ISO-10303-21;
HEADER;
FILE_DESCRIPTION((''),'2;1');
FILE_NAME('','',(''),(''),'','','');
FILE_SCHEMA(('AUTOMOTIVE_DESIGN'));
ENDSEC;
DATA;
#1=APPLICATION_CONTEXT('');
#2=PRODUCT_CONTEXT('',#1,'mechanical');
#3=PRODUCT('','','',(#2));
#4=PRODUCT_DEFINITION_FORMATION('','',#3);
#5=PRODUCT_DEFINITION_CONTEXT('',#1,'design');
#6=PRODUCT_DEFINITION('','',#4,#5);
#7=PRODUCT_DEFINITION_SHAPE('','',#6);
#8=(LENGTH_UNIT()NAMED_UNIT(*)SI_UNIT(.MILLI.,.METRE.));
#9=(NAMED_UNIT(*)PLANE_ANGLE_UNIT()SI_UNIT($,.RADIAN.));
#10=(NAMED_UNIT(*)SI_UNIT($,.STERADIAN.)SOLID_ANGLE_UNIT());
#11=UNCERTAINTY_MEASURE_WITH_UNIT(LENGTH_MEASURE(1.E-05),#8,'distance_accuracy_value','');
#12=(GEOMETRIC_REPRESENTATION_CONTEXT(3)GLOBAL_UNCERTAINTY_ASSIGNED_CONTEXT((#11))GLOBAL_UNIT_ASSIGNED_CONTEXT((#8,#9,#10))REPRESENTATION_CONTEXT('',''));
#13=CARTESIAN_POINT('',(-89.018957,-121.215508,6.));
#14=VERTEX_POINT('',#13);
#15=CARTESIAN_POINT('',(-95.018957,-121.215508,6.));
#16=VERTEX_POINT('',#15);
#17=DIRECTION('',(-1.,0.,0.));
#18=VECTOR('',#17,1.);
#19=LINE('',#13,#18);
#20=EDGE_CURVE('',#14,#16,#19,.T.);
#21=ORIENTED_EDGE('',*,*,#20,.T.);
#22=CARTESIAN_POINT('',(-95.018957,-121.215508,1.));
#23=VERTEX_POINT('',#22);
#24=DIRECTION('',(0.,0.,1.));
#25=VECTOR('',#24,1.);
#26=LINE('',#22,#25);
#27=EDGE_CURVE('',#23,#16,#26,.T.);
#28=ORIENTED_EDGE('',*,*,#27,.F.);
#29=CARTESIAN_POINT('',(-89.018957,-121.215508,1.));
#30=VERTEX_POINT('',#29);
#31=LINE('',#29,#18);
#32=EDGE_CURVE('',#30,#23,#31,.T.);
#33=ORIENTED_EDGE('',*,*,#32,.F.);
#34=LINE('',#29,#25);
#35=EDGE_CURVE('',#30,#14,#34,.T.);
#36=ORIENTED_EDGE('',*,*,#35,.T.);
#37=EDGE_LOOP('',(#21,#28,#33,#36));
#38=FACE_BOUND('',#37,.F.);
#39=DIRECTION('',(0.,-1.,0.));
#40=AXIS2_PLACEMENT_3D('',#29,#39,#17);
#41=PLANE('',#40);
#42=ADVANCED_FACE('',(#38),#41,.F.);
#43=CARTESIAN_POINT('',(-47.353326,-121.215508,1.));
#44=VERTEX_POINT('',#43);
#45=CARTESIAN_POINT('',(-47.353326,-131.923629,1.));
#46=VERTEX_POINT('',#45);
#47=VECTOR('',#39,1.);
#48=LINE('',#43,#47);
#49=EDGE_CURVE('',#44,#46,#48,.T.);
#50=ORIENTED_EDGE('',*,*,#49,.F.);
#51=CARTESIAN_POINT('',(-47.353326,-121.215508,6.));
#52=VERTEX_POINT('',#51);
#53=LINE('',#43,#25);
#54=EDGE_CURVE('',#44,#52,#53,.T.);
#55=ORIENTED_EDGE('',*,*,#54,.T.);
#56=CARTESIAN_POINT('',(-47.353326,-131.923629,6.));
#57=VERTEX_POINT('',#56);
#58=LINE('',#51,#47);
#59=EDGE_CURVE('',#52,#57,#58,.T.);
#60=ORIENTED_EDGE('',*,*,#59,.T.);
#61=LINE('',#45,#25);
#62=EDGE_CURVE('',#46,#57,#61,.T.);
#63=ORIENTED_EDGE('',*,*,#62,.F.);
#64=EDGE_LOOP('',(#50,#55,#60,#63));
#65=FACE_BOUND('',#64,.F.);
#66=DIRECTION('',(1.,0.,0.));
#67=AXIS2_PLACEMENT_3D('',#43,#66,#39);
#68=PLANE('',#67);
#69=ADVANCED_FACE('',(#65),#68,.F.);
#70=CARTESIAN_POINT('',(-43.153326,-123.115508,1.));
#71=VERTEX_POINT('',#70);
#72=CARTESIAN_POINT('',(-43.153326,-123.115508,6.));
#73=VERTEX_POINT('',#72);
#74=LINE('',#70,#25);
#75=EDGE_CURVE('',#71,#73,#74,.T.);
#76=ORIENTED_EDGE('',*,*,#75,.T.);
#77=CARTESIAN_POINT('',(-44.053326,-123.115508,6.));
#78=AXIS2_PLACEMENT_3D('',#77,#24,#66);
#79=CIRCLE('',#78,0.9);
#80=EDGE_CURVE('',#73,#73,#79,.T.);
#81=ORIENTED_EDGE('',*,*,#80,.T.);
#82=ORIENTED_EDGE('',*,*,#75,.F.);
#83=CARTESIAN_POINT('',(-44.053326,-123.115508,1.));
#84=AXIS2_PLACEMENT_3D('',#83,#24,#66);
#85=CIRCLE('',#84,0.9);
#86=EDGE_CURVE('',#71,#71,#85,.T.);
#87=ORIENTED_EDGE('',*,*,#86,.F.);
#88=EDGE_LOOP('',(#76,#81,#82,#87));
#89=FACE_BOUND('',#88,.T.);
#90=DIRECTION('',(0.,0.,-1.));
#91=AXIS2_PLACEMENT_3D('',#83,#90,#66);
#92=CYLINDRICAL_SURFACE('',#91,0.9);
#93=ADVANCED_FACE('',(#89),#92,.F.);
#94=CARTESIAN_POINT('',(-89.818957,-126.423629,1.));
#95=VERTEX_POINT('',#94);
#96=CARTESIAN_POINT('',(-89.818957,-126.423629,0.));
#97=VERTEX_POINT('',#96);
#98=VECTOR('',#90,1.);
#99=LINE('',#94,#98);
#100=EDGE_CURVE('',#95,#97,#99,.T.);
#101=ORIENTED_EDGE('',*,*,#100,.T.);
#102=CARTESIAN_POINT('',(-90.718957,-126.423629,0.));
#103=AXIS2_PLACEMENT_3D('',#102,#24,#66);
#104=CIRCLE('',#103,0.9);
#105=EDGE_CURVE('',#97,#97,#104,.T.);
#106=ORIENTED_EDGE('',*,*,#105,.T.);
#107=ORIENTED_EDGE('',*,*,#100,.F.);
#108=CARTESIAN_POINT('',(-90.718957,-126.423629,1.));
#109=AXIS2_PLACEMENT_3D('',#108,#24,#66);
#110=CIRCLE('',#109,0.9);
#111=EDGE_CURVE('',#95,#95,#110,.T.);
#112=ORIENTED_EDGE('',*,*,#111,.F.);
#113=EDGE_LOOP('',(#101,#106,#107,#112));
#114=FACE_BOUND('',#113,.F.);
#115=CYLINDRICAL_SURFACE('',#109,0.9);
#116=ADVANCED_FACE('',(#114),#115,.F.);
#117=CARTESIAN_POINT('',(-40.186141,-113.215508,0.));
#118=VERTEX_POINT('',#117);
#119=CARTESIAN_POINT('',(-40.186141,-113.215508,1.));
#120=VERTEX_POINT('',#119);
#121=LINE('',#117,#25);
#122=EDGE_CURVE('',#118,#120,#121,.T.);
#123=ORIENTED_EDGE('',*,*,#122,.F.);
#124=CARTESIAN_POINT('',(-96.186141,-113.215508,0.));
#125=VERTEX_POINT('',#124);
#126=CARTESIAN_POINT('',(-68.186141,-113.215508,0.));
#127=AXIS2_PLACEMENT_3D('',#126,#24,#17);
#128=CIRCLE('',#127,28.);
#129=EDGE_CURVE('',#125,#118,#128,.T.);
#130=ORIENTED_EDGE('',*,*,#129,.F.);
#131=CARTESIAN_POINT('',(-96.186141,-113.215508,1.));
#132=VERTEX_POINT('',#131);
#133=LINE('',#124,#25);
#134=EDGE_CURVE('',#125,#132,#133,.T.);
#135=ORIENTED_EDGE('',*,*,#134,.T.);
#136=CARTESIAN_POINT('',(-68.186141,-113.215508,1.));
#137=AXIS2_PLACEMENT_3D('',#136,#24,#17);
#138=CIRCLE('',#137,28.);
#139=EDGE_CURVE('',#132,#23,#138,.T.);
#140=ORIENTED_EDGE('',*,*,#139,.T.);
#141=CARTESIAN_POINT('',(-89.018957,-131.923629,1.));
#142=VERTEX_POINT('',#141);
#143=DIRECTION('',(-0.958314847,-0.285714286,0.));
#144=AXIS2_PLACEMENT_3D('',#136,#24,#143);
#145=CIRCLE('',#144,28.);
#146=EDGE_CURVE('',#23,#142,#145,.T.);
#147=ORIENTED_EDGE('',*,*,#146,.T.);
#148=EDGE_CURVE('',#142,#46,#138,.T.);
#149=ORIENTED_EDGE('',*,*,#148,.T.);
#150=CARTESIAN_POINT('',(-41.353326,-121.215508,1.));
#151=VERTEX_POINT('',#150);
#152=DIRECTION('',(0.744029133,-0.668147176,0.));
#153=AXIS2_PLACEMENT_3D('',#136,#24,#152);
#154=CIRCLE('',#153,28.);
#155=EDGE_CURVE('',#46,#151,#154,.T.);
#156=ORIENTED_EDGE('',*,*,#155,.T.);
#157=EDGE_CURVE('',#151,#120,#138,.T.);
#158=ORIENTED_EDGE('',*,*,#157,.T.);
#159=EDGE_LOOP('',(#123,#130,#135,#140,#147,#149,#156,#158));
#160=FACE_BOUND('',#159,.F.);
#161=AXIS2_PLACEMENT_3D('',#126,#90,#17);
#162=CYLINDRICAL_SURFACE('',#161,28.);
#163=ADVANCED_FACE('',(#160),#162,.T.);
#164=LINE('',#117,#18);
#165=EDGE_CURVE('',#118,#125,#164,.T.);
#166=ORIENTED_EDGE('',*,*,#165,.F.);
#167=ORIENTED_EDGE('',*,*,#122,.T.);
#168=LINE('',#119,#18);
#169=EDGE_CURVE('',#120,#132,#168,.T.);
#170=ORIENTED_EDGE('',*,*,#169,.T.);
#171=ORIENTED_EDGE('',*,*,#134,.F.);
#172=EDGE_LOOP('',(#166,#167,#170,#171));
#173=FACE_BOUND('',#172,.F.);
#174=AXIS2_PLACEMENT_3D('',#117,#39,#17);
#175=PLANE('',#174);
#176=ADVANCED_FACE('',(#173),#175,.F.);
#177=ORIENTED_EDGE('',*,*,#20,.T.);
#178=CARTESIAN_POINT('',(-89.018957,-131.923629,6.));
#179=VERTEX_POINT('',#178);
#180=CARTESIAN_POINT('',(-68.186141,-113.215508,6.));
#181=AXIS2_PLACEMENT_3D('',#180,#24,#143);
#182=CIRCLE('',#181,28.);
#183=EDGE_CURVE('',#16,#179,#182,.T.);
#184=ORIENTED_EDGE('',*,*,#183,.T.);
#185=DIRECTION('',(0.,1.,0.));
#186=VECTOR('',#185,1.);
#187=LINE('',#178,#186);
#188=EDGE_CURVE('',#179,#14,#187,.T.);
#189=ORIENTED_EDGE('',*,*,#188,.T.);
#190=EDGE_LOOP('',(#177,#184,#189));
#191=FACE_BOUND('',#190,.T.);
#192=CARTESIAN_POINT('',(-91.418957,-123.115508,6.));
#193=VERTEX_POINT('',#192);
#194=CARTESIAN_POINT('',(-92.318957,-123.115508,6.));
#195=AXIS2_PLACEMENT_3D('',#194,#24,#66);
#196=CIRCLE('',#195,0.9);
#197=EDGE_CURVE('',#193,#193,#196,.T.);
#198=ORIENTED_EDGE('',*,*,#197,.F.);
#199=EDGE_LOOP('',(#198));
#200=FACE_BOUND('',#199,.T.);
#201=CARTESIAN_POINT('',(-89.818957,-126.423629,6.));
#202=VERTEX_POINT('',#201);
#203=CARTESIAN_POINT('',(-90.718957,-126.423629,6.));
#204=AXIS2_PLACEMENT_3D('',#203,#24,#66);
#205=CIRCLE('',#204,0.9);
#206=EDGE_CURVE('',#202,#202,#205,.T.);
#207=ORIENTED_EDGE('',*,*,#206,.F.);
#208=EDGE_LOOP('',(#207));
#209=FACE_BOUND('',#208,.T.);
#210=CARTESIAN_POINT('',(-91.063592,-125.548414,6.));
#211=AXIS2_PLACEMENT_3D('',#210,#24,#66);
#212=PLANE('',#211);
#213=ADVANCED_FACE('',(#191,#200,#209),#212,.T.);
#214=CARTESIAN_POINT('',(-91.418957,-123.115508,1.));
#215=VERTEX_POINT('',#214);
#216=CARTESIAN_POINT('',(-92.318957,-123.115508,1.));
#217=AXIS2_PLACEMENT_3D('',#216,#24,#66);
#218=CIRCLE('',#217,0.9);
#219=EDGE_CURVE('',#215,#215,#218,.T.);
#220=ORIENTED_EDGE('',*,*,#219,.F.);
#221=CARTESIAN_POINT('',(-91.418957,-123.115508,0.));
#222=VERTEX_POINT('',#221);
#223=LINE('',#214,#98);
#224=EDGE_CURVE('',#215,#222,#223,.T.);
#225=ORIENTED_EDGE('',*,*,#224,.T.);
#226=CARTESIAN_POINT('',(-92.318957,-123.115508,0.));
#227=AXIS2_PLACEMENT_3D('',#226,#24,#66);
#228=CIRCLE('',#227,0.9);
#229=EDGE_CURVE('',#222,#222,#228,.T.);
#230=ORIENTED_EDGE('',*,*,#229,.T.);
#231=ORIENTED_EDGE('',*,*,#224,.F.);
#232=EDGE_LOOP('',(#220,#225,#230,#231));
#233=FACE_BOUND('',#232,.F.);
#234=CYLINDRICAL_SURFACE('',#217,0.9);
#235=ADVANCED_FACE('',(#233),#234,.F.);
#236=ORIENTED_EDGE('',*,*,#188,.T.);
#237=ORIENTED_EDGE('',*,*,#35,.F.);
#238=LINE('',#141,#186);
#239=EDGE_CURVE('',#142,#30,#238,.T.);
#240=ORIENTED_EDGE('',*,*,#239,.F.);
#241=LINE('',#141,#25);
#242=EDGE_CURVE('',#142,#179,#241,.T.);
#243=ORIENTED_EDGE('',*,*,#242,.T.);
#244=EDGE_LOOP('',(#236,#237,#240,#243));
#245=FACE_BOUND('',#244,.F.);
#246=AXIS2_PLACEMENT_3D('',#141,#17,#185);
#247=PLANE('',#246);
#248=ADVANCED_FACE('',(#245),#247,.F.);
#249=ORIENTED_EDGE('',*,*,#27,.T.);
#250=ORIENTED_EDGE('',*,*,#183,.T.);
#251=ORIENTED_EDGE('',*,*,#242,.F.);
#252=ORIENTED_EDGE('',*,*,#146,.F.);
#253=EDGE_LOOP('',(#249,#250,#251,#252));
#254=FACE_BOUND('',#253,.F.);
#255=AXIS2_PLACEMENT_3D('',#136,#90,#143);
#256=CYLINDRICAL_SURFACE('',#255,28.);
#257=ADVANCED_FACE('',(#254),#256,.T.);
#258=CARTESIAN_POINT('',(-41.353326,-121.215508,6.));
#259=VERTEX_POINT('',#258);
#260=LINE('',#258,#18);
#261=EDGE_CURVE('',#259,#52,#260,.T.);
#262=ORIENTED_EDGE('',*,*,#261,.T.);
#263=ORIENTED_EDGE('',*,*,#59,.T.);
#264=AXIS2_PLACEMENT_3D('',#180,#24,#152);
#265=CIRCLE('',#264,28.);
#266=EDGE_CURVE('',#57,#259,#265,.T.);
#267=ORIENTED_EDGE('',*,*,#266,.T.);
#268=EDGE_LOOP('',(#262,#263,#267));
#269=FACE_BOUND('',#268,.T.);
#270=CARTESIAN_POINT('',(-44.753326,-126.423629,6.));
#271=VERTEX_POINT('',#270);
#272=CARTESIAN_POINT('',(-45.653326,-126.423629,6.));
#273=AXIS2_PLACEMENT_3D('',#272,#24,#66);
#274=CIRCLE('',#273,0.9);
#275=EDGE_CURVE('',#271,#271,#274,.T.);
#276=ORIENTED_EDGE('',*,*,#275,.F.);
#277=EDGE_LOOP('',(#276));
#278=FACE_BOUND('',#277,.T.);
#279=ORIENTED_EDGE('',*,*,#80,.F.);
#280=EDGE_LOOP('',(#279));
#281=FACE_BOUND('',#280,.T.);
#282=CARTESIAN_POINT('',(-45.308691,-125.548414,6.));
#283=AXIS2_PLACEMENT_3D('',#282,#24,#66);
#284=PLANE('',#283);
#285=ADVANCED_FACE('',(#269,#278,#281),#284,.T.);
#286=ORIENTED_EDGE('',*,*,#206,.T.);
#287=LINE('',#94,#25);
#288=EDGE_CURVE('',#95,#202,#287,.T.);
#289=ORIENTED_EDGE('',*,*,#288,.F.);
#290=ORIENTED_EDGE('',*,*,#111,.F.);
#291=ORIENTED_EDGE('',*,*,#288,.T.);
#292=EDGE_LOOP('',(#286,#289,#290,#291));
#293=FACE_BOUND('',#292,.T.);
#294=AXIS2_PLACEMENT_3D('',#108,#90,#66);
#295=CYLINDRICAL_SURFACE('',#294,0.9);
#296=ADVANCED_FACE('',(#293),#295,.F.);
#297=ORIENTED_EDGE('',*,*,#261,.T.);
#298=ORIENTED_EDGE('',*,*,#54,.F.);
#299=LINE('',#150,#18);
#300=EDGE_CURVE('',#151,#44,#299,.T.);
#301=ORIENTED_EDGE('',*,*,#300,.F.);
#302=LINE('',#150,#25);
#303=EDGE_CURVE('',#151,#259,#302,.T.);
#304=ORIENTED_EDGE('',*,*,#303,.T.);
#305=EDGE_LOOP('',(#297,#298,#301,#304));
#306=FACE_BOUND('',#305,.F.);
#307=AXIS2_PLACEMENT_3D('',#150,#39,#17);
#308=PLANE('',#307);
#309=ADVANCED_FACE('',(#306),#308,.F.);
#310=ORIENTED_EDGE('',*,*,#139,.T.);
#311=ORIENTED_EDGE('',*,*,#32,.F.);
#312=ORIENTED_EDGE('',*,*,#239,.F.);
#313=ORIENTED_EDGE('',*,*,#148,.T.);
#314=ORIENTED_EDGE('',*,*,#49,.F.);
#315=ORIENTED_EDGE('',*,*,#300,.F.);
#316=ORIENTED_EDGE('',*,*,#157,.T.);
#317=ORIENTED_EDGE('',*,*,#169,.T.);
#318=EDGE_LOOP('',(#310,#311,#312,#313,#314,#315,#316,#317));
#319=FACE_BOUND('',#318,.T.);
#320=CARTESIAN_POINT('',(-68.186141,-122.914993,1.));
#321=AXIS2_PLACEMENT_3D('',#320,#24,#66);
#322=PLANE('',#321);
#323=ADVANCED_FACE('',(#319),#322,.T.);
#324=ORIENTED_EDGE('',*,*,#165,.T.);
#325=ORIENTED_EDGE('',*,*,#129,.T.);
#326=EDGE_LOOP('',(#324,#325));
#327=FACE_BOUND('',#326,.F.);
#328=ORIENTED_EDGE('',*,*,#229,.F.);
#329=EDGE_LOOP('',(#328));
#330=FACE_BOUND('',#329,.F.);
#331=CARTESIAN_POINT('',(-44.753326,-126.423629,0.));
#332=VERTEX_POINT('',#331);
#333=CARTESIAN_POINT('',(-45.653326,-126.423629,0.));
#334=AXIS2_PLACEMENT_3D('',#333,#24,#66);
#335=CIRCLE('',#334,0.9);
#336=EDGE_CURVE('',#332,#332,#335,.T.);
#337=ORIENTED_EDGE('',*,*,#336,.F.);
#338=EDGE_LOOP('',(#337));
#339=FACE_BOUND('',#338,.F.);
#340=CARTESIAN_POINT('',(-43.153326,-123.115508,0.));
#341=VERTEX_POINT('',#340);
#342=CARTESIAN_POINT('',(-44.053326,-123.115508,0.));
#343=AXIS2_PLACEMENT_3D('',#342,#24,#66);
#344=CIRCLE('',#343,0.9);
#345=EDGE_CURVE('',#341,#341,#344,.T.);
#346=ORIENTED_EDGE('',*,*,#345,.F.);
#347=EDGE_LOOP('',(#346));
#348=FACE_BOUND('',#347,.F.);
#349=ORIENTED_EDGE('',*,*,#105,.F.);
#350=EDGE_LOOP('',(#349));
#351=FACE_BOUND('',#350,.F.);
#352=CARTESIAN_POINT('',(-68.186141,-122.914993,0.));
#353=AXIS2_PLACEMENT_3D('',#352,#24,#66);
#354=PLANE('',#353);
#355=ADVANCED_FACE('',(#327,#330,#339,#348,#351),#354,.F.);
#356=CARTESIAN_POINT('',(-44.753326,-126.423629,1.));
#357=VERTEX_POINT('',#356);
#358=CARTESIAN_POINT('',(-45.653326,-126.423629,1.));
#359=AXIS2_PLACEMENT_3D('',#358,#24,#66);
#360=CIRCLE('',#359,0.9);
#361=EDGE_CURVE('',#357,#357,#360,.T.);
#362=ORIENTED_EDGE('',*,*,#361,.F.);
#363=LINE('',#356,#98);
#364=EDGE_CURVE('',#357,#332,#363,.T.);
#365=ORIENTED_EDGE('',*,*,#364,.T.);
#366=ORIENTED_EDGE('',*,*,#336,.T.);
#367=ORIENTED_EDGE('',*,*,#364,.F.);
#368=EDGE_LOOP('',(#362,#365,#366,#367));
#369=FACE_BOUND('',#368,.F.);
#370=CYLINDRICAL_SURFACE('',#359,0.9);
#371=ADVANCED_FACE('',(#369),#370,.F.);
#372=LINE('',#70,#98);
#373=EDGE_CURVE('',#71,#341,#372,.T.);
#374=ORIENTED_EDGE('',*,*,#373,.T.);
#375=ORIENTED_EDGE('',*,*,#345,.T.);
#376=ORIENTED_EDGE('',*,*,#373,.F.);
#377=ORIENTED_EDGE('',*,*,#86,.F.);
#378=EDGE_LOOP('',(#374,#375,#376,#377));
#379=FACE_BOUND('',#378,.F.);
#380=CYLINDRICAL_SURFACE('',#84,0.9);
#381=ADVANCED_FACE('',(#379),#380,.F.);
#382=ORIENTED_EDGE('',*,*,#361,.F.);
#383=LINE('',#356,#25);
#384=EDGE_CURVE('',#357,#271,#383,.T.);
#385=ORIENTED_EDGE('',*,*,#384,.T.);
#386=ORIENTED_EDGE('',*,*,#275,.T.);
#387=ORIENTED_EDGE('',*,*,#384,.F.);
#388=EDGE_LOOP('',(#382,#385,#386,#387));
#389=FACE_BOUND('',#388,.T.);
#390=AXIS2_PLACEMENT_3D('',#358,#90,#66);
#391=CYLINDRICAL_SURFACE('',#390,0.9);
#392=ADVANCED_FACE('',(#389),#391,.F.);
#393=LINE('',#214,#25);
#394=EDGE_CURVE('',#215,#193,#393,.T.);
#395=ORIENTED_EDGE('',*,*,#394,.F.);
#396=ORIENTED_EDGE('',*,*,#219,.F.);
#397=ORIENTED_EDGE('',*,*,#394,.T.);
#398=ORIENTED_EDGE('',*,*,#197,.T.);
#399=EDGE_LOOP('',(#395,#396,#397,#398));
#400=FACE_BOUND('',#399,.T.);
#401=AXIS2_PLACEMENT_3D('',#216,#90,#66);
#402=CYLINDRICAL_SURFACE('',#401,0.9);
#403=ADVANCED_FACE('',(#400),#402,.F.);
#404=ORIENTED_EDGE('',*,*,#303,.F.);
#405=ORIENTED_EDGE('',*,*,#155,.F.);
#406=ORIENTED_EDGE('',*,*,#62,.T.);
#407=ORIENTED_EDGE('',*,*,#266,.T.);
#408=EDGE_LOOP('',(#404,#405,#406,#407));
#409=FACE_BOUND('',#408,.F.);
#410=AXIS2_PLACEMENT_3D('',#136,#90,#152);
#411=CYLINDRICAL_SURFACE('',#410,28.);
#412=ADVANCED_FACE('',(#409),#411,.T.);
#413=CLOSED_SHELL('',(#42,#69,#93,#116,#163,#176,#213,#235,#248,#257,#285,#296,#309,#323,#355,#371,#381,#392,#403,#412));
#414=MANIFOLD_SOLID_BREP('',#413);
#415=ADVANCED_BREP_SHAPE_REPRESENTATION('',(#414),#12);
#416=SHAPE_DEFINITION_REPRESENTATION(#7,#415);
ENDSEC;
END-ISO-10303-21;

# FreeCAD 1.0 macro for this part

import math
import FreeCAD as App
import Part
import Sketcher

V = App.Vector

doc = App.newDocument("Part")
body = doc.addObject("PartDesign::Body", "Body")

# Sketch on XY plane
sketch1 = doc.addObject("Sketcher::SketchObject", "Sketch")
body.addObject(sketch1)
sketch1.AttachmentSupport = (doc.XY_Plane, [""])
sketch1.MapMode = "FlatFace"
sketch1.addGeometry(Part.ArcOfCircle(Part.Circle(V(-68, -113, 0), V(0, 0, 1), 28), math.radians(180), math.radians(360)), False)
sketch1.addGeometry(Part.LineSegment(V(-40, -113, 0), V(-96, -113, 0)), False)
sketch1.addConstraint(Sketcher.Constraint("Coincident", 0, 1, 1, 2))
sketch1.addConstraint(Sketcher.Constraint("Coincident", 1, 1, 0, 2))
sketch1.addConstraint(Sketcher.Constraint("Horizontal", 1))
sketch1.addConstraint(Sketcher.Constraint("Radius", 0, 28.0))
sketch1.addConstraint(Sketcher.Constraint("DistanceX", 0, 3, -1, 1, 68.186141))
sketch1.addConstraint(Sketcher.Constraint("DistanceY", 0, 3, -1, 1, 113.215508))
sketch1.addConstraint(Sketcher.Constraint("DistanceY", 0, 1, -1, 1, 113.215508))
pad1 = doc.addObject("PartDesign::Pad", "Pad")
body.addObject(pad1)
pad1.Profile = sketch1
pad1.Length = 1

# Sketch on XY plane
sketch2 = doc.addObject("Sketcher::SketchObject", "Sketch001")
body.addObject(sketch2)
sketch2.AttachmentSupport = (doc.XY_Plane, [""])
sketch2.MapMode = "FlatFace"
sketch2.AttachmentOffset = App.Placement(V(0, 0, 1), App.Rotation())
sketch2.addGeometry(Part.LineSegment(V(-89, -121.2, 0), V(-95, -121.2, 0)), False)
sketch2.addGeometry(Part.ArcOfCircle(Part.Circle(V(-68.2, -113.2, 0), V(0, 0, 1), 28), math.radians(-163), math.radians(-138)), False)
sketch2.addGeometry(Part.LineSegment(V(-89, -131.9, 0), V(-89, -121.2, 0)), False)
sketch2.addGeometry(Part.Circle(V(-90.7, -126.4, 0), V(0, 0, 1), 0.9), False)
sketch2.addGeometry(Part.Circle(V(-92.3, -123.1, 0), V(0, 0, 1), 0.9), False)
sketch2.addGeometry(Part.LineSegment(V(-47.4, -121.2, 0), V(-47.4, -131.9, 0)), False)
sketch2.addGeometry(Part.ArcOfCircle(Part.Circle(V(-68.2, -113.2, 0), V(0, 0, 1), 28), math.radians(-42), math.radians(-17)), False)
sketch2.addGeometry(Part.LineSegment(V(-41.4, -121.2, 0), V(-47.4, -121.2, 0)), False)
sketch2.addGeometry(Part.Circle(V(-45.7, -126.4, 0), V(0, 0, 1), 0.9), False)
sketch2.addGeometry(Part.Circle(V(-44.1, -123.1, 0), V(0, 0, 1), 0.9), False)
sketch2.addConstraint(Sketcher.Constraint("Coincident", 0, 2, 1, 1))
sketch2.addConstraint(Sketcher.Constraint("Coincident", 1, 2, 2, 1))
sketch2.addConstraint(Sketcher.Constraint("Coincident", 2, 2, 0, 1))
sketch2.addConstraint(Sketcher.Constraint("Coincident", 5, 2, 6, 1))
sketch2.addConstraint(Sketcher.Constraint("Coincident", 6, 2, 7, 1))
sketch2.addConstraint(Sketcher.Constraint("Coincident", 7, 2, 5, 1))
sketch2.addConstraint(Sketcher.Constraint("Horizontal", 0))
sketch2.addConstraint(Sketcher.Constraint("Vertical", 2))
sketch2.addConstraint(Sketcher.Constraint("Vertical", 5))
sketch2.addConstraint(Sketcher.Constraint("Horizontal", 7))
sketch2.addConstraint(Sketcher.Constraint("Coincident", 6, 3, 1, 3))
sketch2.addConstraint(Sketcher.Constraint("Equal", 3, 4))
sketch2.addConstraint(Sketcher.Constraint("Equal", 1, 6))
sketch2.addConstraint(Sketcher.Constraint("Equal", 4, 8))
sketch2.addConstraint(Sketcher.Constraint("Equal", 8, 9))
sketch2.addConstraint(Sketcher.Constraint("Horizontal", 3, 3, 8, 3))
sketch2.addConstraint(Sketcher.Constraint("Horizontal", 4, 3, 9, 3))
sketch2.addConstraint(Sketcher.Constraint("Horizontal", 1, 2, 5, 2))
sketch2.addConstraint(Sketcher.Constraint("Horizontal", 2, 2, 6, 2))
sketch2.addConstraint(Sketcher.Constraint("Radius", 1, 28.0))
sketch2.addConstraint(Sketcher.Constraint("Diameter", 3, 1.8))
sketch2.addConstraint(Sketcher.Constraint("DistanceX", 0, 2, 0, 1, 6.0))
sketch2.addConstraint(Sketcher.Constraint("DistanceY", 0, 2, 6, 3, 8.0))
sketch2.addConstraint(Sketcher.Constraint("DistanceX", 4, 3, 3, 3, 1.6))
sketch2.addConstraint(Sketcher.Constraint("DistanceY", 4, 3, 1, 3, 9.9))
sketch2.addConstraint(Sketcher.Constraint("DistanceX", 8, 3, 9, 3, 1.6))
sketch2.addConstraint(Sketcher.Constraint("DistanceX", 0, 2, 4, 3, 2.7))
sketch2.addConstraint(Sketcher.Constraint("DistanceY", 1, 2, 3, 3, 5.5))
sketch2.addConstraint(Sketcher.Constraint("DistanceX", 5, 2, 8, 3, 1.7))
sketch2.addConstraint(Sketcher.Constraint("DistanceX", 1, 3, -1, 1, 68.186141))
sketch2.addConstraint(Sketcher.Constraint("DistanceY", 1, 3, -1, 1, 113.215508))
pad2 = doc.addObject("PartDesign::Pad", "Pad001")
body.addObject(pad2)
pad2.Profile = sketch2
pad2.Length = 5

# Sketch on XY plane
sketch3 = doc.addObject("Sketcher::SketchObject", "Sketch002")
body.addObject(sketch3)
sketch3.AttachmentSupport = (doc.XY_Plane, [""])
sketch3.MapMode = "FlatFace"
sketch3.AttachmentOffset = App.Placement(V(0, 0, 1), App.Rotation())
sketch3.addGeometry(Part.Circle(V(-92.3, -123.1, 0), V(0, 0, 1), 0.9), False)
sketch3.addGeometry(Part.Circle(V(-90.7, -126.4, 0), V(0, 0, 1), 0.9), False)
sketch3.addGeometry(Part.Circle(V(-44.1, -123.1, 0), V(0, 0, 1), 0.9), False)
sketch3.addGeometry(Part.Circle(V(-45.7, -126.4, 0), V(0, 0, 1), 0.9), False)
sketch3.addConstraint(Sketcher.Constraint("Equal", 0, 1))
sketch3.addConstraint(Sketcher.Constraint("Equal", 1, 2))
sketch3.addConstraint(Sketcher.Constraint("Equal", 2, 3))
sketch3.addConstraint(Sketcher.Constraint("Horizontal", 0, 3, 2, 3))
sketch3.addConstraint(Sketcher.Constraint("Horizontal", 1, 3, 3, 3))
sketch3.addConstraint(Sketcher.Constraint("Diameter", 0, 1.8))
sketch3.addConstraint(Sketcher.Constraint("DistanceX", 0, 3, 1, 3, 1.6))
sketch3.addConstraint(Sketcher.Constraint("DistanceX", 3, 3, 2, 3, 1.6))
sketch3.addConstraint(Sketcher.Constraint("DistanceY", 0, 3, -1, 1, 123.115508))
sketch3.addConstraint(Sketcher.Constraint("DistanceY", 1, 3, -1, 1, 126.423629))
sketch3.addConstraint(Sketcher.Constraint("DistanceX", 1, 3, 2, 3, 46.665631))
sketch3.addConstraint(Sketcher.Constraint("DistanceX", 0, 3, -1, 1, 92.318957))
pocket1 = doc.addObject("PartDesign::Pocket", "Pocket")
body.addObject(pocket1)
pocket1.Profile = sketch3
pocket1.Type = "ThroughAll"

doc.recompute()
